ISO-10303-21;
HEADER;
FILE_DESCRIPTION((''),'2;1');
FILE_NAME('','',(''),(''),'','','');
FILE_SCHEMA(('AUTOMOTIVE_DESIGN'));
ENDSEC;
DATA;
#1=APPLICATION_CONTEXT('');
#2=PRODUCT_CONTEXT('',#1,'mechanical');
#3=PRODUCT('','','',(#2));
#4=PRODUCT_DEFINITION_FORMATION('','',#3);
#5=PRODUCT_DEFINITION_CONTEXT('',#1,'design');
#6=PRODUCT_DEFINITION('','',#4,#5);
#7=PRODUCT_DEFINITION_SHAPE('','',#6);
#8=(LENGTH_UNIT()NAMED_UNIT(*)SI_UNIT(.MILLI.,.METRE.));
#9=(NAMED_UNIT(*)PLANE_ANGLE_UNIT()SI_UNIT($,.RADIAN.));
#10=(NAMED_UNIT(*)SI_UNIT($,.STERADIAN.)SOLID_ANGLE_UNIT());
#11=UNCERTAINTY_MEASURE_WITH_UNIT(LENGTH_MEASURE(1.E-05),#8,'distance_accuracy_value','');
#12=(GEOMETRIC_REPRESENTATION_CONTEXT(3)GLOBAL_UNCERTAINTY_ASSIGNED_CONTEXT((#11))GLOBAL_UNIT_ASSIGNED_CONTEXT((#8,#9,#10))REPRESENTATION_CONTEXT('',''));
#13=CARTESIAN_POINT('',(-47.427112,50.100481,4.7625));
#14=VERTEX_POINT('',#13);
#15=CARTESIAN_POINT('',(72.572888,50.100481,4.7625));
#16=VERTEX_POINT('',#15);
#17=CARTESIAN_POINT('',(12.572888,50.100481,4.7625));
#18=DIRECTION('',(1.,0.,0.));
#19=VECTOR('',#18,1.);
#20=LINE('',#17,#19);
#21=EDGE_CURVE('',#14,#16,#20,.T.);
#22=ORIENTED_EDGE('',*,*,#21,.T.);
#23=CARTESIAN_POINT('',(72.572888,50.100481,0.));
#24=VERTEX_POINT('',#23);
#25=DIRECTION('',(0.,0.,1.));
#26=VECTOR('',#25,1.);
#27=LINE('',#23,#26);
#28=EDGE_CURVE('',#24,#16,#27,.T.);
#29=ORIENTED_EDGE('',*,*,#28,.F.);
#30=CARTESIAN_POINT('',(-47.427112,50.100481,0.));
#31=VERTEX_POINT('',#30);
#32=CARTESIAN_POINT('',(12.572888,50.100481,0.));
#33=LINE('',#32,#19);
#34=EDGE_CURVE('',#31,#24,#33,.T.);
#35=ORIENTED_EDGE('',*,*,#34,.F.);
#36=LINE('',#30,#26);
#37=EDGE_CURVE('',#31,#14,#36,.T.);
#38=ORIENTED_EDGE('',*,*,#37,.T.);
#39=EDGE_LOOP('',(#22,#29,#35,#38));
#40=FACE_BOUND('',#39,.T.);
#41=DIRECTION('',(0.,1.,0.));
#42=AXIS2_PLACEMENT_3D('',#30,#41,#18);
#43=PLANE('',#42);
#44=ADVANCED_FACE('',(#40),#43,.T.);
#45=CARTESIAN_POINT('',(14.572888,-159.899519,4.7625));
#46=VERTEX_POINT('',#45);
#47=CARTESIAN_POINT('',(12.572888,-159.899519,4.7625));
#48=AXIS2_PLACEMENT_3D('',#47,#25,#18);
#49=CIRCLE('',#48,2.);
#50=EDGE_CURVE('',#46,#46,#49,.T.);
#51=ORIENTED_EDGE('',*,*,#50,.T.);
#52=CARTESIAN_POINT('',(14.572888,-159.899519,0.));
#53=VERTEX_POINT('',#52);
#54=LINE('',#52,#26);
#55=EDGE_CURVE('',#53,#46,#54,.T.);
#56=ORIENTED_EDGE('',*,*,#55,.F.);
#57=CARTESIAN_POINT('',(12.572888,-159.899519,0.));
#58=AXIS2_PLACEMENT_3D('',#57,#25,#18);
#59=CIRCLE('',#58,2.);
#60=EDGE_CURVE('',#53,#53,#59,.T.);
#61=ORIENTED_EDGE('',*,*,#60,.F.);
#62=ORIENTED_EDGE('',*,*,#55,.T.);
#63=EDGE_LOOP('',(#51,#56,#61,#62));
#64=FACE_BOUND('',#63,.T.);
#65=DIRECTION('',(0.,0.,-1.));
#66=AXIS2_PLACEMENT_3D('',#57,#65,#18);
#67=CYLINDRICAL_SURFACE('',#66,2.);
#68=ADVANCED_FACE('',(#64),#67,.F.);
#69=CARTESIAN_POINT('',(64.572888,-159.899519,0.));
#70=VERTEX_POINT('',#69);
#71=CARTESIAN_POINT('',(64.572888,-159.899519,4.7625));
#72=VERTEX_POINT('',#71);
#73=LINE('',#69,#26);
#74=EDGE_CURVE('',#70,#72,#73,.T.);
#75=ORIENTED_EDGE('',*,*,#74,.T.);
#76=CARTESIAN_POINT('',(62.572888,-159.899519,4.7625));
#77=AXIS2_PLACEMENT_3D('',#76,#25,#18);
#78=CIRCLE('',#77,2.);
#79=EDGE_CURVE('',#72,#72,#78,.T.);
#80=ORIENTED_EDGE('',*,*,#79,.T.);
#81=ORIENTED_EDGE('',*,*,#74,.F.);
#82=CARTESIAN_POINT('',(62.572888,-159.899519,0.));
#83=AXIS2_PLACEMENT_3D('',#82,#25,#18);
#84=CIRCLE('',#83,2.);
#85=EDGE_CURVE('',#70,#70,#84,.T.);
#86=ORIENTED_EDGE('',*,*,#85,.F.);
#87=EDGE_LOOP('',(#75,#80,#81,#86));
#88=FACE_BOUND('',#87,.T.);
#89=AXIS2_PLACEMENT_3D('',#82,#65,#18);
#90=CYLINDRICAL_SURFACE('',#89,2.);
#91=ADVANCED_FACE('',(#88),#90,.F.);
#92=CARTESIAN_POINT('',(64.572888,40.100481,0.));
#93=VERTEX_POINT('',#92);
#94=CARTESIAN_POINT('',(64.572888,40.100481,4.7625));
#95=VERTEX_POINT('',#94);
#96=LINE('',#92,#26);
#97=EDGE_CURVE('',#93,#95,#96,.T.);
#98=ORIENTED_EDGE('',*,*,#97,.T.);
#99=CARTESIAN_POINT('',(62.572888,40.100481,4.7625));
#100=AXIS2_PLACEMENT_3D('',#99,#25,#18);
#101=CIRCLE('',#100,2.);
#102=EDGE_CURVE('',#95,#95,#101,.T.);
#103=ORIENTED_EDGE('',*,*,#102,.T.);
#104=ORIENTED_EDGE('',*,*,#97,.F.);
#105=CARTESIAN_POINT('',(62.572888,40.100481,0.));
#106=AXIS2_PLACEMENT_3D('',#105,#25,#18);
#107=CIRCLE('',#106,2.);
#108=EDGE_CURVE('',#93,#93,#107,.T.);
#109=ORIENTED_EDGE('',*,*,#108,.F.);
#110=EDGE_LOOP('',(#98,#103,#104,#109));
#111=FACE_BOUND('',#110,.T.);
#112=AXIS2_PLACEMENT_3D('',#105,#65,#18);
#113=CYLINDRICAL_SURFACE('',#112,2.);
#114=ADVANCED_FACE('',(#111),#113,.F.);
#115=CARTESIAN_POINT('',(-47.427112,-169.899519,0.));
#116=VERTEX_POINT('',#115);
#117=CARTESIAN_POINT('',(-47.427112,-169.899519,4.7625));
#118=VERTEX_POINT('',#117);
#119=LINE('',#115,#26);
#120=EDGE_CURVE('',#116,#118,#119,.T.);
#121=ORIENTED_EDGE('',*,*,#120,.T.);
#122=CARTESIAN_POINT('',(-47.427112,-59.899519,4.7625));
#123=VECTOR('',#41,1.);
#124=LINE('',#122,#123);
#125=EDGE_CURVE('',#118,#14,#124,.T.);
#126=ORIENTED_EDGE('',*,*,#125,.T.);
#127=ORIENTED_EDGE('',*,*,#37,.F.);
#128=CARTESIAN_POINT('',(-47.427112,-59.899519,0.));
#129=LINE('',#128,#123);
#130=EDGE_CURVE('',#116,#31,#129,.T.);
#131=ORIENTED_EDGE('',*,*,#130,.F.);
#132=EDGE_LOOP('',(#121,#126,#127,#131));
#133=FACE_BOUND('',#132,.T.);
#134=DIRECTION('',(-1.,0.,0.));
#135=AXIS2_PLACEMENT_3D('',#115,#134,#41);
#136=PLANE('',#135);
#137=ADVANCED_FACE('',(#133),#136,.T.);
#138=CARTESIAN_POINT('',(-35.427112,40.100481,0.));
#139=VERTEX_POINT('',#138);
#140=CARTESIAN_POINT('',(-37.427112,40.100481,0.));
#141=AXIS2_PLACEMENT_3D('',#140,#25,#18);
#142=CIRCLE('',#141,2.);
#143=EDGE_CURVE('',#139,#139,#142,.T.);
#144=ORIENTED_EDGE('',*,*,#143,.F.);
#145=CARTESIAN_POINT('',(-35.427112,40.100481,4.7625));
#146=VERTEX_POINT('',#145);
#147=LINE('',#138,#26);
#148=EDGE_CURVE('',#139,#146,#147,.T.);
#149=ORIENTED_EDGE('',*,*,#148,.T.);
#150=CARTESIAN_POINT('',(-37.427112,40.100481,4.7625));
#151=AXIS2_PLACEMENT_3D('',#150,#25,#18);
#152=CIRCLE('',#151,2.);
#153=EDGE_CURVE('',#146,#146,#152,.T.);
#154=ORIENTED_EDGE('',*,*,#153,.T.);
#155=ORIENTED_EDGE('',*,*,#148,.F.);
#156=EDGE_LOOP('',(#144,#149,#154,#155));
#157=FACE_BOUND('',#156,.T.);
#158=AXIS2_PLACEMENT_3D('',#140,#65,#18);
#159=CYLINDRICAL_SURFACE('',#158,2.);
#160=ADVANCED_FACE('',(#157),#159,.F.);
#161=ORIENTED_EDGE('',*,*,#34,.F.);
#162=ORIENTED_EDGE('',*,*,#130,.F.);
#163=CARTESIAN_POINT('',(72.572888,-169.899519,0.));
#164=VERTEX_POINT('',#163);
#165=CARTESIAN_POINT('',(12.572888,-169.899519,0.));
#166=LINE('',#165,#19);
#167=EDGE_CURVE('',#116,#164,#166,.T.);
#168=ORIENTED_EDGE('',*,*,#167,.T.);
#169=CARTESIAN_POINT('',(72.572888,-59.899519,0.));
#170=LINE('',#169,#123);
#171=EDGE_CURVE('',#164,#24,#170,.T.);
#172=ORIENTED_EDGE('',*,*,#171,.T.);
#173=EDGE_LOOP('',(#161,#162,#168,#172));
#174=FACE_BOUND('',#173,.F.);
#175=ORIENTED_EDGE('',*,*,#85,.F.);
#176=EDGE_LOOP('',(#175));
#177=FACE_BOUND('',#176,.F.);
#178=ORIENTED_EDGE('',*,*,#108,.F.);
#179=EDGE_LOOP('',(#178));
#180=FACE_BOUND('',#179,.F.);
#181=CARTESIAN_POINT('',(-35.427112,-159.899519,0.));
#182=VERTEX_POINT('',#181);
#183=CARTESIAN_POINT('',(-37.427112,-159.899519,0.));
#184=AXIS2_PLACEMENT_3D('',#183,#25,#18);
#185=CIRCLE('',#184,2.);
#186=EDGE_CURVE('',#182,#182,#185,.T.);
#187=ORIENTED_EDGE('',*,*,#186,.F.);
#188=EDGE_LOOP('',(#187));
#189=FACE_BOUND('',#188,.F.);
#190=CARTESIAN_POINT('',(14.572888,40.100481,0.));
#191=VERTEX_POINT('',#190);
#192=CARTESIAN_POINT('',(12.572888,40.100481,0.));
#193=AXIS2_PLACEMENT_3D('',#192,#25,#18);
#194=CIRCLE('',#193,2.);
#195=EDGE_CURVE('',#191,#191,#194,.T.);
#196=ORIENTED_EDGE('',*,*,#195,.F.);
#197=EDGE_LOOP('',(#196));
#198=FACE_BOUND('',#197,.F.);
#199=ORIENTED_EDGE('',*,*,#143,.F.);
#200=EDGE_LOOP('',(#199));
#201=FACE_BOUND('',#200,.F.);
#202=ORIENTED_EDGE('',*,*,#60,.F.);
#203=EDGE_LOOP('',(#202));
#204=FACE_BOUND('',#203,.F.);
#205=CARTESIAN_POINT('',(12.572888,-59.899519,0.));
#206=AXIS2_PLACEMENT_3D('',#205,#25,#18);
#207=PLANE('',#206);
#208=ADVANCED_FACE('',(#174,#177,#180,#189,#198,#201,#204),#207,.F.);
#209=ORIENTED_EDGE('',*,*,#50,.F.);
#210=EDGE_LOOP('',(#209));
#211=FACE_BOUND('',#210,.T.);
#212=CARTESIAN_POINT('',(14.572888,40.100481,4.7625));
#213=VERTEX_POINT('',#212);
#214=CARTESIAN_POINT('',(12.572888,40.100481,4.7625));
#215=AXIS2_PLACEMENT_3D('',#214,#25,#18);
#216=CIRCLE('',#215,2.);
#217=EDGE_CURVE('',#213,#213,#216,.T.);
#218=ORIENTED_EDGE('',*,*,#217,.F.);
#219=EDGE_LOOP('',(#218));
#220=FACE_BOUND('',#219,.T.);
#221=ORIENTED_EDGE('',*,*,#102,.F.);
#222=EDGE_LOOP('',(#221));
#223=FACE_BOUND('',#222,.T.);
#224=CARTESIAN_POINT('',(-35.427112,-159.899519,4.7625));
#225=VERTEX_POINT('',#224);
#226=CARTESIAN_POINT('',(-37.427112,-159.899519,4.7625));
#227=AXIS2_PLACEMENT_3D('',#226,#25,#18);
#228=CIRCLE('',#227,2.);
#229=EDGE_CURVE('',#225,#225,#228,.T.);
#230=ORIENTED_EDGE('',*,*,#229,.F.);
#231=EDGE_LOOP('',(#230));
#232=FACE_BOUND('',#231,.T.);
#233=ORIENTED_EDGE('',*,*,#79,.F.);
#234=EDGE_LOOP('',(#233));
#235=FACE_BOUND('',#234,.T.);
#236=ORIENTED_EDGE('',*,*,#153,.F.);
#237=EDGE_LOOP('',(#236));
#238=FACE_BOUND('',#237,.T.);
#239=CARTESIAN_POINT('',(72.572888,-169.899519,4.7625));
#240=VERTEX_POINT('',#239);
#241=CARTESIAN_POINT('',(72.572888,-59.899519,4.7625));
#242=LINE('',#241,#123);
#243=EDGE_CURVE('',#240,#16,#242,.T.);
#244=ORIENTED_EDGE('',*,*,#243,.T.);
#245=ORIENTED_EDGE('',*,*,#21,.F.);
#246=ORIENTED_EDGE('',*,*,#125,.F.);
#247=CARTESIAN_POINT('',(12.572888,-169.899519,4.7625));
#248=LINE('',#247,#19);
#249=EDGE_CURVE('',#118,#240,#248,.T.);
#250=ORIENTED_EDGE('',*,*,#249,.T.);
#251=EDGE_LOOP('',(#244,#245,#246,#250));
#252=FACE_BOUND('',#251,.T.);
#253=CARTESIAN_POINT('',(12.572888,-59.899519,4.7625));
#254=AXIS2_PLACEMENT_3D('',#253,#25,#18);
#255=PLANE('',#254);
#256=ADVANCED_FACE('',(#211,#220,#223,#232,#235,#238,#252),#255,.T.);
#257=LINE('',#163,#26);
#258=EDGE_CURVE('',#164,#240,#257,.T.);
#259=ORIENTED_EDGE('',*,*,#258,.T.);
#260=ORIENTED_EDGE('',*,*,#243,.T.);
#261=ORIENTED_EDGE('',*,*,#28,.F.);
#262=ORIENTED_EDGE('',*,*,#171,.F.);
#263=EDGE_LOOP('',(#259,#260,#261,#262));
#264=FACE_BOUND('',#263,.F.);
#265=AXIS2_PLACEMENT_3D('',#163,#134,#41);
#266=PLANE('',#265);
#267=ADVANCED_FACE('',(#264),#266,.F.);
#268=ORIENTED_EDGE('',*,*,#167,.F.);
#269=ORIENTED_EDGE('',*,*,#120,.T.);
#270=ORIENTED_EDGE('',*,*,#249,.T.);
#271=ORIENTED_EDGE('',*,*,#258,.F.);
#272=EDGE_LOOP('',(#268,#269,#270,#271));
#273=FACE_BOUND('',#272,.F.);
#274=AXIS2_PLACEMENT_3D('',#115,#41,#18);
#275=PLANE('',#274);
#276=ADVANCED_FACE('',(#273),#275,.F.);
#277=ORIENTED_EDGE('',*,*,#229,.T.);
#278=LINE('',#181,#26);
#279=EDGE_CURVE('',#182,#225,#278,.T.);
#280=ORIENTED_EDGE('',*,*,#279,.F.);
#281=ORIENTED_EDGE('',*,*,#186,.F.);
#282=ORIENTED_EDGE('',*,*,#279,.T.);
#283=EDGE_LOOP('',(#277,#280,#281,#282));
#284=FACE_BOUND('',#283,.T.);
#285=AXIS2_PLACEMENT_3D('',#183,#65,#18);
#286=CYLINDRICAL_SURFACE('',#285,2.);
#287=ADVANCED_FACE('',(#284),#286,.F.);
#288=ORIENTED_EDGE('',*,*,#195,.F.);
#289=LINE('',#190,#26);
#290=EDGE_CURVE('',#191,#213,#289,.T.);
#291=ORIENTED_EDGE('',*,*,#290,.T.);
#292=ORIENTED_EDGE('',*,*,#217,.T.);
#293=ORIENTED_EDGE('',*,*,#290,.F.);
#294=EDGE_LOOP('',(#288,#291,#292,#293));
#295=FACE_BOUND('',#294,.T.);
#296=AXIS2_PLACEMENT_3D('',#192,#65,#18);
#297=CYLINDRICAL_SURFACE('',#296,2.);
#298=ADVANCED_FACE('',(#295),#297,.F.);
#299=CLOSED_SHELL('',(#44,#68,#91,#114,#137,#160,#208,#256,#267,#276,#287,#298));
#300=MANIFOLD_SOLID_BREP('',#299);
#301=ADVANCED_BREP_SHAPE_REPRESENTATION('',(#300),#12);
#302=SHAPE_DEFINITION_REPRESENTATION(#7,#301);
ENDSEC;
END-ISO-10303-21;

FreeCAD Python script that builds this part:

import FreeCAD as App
import Part
import Sketcher
from FreeCAD import Vector
Q = App.Units.Quantity

doc = App.newDocument("Part")
body = doc.addObject("PartDesign::Body", "Body")

sketch1 = body.newObject("Sketcher::SketchObject", "Sketch")
sketch1.AttachmentSupport = (doc.getObject("XY_Plane"), [""])
sketch1.MapMode = "FlatFace"
sketch1.addGeometry([
    Part.LineSegment(Vector(-47.4, 50.1, 0), Vector(-47.4, -169.9, 0)),
    Part.LineSegment(Vector(-47.4, -169.9, 0), Vector(72.6, -169.9, 0)),
    Part.LineSegment(Vector(72.6, -169.9, 0), Vector(72.6, 50.1, 0)),
    Part.LineSegment(Vector(72.6, 50.1, 0), Vector(-47.4, 50.1, 0)),
    Part.Circle(Vector(-37.4, -159.9, 0), Vector(0, 0, 1), 2),
    Part.Circle(Vector(12.6, -159.9, 0), Vector(0, 0, 1), 2),
    Part.Circle(Vector(62.6, -159.9, 0), Vector(0, 0, 1), 2),
    Part.Circle(Vector(-37.4, 40.1, 0), Vector(0, 0, 1), 2),
    Part.Circle(Vector(12.6, 40.1, 0), Vector(0, 0, 1), 2),
    Part.Circle(Vector(62.6, 40.1, 0), Vector(0, 0, 1), 2),
], False)
sketch1.addConstraint([
    Sketcher.Constraint("Coincident", 0, 2, 1, 1),
    Sketcher.Constraint("Coincident", 1, 2, 2, 1),
    Sketcher.Constraint("Coincident", 2, 2, 3, 1),
    Sketcher.Constraint("Coincident", 3, 2, 0, 1),
    Sketcher.Constraint("Vertical", 0),
    Sketcher.Constraint("Horizontal", 1),
    Sketcher.Constraint("Vertical", 2),
    Sketcher.Constraint("Horizontal", 3),
    Sketcher.Constraint("Equal", 4, 5),
    Sketcher.Constraint("Equal", 5, 6),
    Sketcher.Constraint("Equal", 6, 7),
    Sketcher.Constraint("Equal", 7, 8),
    Sketcher.Constraint("Equal", 8, 9),
    Sketcher.Constraint("Horizontal", 4, 3, 5, 3),
    Sketcher.Constraint("Horizontal", 5, 3, 6, 3),
    Sketcher.Constraint("Horizontal", 7, 3, 8, 3),
    Sketcher.Constraint("Horizontal", 8, 3, 9, 3),
    Sketcher.Constraint("Vertical", 4, 3, 7, 3),
    Sketcher.Constraint("Vertical", 5, 3, 8, 3),
    Sketcher.Constraint("Vertical", 6, 3, 9, 3),
    Sketcher.Constraint("Diameter", 4, Q("4 mm")),
    Sketcher.Constraint("DistanceX", 1, 1, 1, 2, Q("120 mm")),
    Sketcher.Constraint("DistanceY", 0, 2, 0, 1, Q("220 mm")),
    Sketcher.Constraint("DistanceX", 4, 3, 5, 3, Q("50 mm")),
    Sketcher.Constraint("DistanceX", 5, 3, 6, 3, Q("50 mm")),
    Sketcher.Constraint("DistanceY", 4, 3, 7, 3, Q("200 mm")),
    Sketcher.Constraint("DistanceX", 0, 2, 4, 3, Q("10 mm")),
    Sketcher.Constraint("DistanceY", 0, 2, 4, 3, Q("10 mm")),
    Sketcher.Constraint("DistanceY", 4, 3, -1, 1, Q("159.899519 mm")),
    Sketcher.Constraint("DistanceX", -1, 1, 5, 3, Q("12.572888 mm")),
])
pad1 = body.newObject("PartDesign::Pad", "Pad")
pad1.Profile = sketch1
pad1.Length = 4.7625

doc.recompute()
